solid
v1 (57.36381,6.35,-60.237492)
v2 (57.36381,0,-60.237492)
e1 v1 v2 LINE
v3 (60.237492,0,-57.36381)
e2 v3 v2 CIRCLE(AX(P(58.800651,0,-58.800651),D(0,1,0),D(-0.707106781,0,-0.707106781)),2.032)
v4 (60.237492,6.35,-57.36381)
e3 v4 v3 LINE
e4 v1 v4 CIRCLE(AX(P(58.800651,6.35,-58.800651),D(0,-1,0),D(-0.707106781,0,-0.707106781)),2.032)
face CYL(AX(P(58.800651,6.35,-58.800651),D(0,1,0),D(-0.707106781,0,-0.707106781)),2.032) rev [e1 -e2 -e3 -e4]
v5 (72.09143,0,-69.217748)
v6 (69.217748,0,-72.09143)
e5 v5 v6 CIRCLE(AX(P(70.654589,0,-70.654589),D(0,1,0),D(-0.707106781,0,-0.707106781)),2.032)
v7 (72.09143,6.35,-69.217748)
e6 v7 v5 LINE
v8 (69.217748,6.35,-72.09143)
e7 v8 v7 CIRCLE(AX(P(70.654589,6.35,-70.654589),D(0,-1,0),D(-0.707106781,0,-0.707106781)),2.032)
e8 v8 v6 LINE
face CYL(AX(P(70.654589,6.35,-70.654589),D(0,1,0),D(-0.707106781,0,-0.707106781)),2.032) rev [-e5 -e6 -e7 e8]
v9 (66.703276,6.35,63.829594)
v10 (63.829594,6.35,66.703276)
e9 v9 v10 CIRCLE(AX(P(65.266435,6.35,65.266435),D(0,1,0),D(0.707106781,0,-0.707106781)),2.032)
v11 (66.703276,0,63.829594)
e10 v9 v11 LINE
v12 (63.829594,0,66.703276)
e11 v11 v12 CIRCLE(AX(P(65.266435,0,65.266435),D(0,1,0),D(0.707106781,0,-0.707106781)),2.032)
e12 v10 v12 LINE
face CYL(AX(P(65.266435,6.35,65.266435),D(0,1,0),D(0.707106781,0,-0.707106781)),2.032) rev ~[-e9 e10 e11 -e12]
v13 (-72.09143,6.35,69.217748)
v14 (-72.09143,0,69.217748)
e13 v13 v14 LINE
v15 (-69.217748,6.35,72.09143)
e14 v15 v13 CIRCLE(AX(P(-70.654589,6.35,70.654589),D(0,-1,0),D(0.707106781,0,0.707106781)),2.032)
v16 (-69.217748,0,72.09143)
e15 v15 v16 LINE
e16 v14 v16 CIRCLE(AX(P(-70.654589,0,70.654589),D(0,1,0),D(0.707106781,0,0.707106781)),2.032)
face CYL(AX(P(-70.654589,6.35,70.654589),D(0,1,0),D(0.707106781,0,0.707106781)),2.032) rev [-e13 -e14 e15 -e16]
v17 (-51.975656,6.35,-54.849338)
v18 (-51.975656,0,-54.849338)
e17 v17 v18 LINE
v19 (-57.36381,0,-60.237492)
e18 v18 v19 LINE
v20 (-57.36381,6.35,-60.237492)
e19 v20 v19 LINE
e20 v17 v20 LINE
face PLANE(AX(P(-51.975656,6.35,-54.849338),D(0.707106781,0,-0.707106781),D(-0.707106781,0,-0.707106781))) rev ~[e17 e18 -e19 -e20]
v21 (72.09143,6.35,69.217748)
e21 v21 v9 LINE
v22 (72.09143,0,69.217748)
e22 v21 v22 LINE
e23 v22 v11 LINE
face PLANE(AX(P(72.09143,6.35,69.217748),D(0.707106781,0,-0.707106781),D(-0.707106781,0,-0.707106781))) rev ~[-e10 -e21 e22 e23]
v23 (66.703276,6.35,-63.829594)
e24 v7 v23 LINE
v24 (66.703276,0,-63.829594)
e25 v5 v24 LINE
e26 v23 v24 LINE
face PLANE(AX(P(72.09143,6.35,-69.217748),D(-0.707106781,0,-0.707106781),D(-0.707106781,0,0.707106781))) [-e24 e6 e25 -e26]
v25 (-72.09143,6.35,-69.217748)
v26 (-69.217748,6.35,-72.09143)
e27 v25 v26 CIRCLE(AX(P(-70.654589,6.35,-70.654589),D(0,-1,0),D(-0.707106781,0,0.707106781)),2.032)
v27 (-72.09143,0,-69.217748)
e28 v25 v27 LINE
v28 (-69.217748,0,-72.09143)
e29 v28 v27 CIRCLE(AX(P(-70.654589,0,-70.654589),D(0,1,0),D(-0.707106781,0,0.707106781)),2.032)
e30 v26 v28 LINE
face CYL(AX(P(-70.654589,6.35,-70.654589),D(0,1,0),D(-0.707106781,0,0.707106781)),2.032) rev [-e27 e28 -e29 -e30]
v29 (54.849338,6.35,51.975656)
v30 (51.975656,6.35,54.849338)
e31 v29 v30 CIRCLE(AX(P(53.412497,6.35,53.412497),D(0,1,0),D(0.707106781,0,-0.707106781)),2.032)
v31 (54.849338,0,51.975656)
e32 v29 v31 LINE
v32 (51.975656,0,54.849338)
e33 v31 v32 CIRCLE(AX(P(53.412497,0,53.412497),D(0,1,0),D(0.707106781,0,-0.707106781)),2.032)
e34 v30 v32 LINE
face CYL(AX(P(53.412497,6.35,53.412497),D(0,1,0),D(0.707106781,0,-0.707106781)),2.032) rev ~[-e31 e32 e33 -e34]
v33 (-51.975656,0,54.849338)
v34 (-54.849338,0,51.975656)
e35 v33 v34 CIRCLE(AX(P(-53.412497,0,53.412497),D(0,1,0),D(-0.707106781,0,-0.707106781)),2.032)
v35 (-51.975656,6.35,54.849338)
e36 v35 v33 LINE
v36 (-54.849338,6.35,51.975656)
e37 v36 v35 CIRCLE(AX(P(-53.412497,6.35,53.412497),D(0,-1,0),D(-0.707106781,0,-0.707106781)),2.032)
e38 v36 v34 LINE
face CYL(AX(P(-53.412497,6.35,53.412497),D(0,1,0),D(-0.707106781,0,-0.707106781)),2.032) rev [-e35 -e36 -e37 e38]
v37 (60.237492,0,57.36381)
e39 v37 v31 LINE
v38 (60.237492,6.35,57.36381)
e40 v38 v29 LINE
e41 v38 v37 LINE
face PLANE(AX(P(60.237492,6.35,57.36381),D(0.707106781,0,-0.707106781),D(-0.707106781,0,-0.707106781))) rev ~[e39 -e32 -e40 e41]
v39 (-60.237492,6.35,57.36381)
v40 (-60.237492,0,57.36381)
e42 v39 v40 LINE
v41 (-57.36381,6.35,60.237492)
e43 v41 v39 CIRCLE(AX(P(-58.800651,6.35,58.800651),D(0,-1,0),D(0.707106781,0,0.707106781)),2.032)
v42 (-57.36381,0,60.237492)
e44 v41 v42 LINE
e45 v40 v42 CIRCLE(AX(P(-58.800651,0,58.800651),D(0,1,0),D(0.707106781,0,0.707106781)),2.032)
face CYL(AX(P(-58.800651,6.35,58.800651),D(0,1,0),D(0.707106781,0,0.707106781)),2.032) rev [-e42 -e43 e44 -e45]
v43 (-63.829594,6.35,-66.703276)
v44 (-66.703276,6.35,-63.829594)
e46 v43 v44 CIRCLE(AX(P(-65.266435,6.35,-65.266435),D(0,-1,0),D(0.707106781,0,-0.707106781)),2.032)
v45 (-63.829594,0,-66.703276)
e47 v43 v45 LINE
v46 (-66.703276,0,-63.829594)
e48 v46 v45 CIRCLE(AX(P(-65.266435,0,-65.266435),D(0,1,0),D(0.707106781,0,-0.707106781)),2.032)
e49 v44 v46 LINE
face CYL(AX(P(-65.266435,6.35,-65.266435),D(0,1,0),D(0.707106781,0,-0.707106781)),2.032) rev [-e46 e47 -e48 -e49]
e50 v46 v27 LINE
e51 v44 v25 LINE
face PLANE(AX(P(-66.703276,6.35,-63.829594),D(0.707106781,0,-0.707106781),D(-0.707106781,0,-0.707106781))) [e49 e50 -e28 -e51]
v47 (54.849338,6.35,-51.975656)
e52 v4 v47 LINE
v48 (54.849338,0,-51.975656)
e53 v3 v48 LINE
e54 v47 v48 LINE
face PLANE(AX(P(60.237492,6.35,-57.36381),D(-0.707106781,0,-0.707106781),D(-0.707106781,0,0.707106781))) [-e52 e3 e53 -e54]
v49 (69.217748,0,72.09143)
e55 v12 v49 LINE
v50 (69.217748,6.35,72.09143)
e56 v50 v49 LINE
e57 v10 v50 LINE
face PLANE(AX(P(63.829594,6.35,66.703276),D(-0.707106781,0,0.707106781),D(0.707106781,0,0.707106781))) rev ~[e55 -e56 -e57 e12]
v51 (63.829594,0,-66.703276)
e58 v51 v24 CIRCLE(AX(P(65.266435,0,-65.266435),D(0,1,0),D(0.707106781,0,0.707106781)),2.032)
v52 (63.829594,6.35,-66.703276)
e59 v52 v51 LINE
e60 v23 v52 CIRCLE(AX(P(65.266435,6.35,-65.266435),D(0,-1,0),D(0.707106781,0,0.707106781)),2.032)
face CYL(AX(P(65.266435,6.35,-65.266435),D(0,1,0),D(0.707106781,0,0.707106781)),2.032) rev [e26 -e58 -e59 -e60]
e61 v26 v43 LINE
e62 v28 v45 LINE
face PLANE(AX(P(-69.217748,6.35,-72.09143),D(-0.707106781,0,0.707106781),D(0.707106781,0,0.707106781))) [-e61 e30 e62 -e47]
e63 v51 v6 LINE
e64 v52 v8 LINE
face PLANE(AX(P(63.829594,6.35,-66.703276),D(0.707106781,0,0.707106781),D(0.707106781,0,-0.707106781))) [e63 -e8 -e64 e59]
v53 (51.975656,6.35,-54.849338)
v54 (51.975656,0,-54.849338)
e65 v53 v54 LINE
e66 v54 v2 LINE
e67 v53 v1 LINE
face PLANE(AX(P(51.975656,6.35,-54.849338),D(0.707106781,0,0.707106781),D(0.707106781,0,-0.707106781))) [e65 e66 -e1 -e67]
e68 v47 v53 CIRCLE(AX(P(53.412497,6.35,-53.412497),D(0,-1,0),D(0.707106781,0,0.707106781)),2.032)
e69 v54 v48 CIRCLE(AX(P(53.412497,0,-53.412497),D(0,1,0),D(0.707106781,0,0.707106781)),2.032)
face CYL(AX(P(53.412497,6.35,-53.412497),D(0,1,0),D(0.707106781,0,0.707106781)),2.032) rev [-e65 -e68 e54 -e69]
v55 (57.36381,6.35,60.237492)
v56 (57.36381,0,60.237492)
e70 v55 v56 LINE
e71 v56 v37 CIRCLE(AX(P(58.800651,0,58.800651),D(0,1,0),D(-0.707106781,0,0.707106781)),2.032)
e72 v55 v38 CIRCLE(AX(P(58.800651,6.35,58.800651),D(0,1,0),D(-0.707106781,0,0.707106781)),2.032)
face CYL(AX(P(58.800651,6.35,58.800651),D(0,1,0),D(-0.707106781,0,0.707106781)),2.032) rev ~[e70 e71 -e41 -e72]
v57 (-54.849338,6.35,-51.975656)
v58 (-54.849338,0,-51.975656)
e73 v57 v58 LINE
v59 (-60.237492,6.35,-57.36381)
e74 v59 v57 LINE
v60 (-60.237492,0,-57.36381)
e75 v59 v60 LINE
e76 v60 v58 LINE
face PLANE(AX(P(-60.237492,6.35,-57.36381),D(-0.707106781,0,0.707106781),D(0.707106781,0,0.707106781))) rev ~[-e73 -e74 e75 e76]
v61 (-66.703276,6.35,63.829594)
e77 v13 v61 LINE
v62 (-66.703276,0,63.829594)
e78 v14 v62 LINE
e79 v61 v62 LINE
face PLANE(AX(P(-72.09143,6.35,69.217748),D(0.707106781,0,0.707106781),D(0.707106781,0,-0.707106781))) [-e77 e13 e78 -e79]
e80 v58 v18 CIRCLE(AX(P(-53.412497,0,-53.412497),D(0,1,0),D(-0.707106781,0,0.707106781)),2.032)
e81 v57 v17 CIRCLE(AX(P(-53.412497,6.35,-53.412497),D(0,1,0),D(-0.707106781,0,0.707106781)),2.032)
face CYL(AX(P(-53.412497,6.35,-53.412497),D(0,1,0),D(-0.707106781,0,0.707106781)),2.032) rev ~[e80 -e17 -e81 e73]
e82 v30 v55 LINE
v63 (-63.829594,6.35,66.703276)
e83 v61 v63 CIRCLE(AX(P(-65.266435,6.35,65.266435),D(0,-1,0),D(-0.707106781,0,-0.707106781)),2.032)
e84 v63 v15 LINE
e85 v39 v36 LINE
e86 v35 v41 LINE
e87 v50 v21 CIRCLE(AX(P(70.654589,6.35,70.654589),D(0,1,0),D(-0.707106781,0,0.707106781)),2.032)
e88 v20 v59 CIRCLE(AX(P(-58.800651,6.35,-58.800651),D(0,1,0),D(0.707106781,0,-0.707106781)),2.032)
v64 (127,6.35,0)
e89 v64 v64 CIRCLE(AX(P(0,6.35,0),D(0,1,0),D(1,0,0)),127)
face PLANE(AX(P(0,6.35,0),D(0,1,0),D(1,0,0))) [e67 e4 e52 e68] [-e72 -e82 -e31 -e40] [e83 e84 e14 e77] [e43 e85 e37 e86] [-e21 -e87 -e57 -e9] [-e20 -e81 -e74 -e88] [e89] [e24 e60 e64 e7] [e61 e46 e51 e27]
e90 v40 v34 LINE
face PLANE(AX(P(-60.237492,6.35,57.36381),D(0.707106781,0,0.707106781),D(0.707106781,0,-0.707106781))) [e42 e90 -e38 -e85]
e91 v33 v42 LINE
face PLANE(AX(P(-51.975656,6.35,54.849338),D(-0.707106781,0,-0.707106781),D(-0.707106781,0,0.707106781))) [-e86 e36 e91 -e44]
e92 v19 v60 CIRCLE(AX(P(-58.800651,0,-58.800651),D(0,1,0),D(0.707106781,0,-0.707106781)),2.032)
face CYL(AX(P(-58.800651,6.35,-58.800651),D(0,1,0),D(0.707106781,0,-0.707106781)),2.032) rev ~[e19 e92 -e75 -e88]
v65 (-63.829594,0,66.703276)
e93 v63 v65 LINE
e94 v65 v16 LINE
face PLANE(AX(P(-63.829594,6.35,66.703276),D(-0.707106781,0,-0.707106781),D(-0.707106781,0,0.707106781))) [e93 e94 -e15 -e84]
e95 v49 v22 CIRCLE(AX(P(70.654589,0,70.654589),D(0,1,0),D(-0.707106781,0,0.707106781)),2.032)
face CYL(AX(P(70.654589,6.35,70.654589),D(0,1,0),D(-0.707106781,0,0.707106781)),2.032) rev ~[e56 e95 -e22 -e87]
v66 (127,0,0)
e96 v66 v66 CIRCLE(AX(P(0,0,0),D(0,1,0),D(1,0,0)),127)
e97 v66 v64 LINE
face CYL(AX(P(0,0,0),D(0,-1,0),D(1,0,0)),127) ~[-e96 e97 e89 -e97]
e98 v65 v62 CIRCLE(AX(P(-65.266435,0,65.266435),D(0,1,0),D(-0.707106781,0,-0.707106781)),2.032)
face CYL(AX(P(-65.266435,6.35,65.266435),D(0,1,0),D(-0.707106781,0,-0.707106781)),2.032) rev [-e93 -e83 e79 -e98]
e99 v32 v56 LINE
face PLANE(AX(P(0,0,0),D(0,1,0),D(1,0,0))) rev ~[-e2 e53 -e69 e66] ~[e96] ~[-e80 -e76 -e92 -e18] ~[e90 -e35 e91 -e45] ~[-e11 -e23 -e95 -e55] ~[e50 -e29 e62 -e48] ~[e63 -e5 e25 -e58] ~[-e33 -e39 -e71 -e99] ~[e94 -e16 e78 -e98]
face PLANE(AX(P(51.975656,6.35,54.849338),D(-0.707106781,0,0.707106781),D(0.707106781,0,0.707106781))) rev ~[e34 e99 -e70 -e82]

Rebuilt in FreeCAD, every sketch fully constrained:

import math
import FreeCAD as App
import Part
import Sketcher

V = App.Vector
Q = App.Units.Quantity

doc = App.newDocument("Part")
params = doc.addObject("Spreadsheet::Sheet", "Params")
for row, (alias, value) in enumerate([
    ("sketch1_diameter", "10 in"),
    ("pad1_length", "0.25 in"),
    ("sketch2_radius", "0.08 in"),
    ("sketch2_length", "0.3 in"),
], start=1):
    params.set(f"A{row}", alias)
    params.set(f"B{row}", "=" + value)
    params.setAlias(f"B{row}", alias)

body = doc.addObject("PartDesign::Body", "Body")

# Sketch on XZ plane
sketch1 = doc.addObject("Sketcher::SketchObject", "Sketch")
body.addObject(sketch1)
sketch1.AttachmentSupport = (doc.XZ_Plane, [""])
sketch1.MapMode = "FlatFace"
sketch1.addGeometry(Part.Circle(V(0, 0, 0), V(0, 0, 1), 127), False)
sketch1.addConstraint([
    Sketcher.Constraint("Coincident", 0, 3, -1, 1),
    Sketcher.Constraint("Diameter", 0, Q("10 in")),
])
sketch1.setExpression("Constraints[1]", "Params.sketch1_diameter")
pad1 = doc.addObject("PartDesign::Pad", "Pad")
body.addObject(pad1)
pad1.Profile = sketch1
pad1.setExpression("Length", "Params.pad1_length")
pad1.Reversed = True

# Sketch on XZ plane
sketch2 = doc.addObject("Sketcher::SketchObject", "Sketch001")
body.addObject(sketch2)
sketch2.AttachmentSupport = (doc.XZ_Plane, [""])
sketch2.MapMode = "FlatFace"
sketch2.AttachmentOffset = App.Placement(V(0, 0, -0.25 * 25.4), App.Rotation())
sketch2.addGeometry([
    Part.LineSegment(V(-60.237492, -57.36381, 0), V(-54.849338, -51.975656, 0)),  # 0
    Part.ArcOfCircle(Part.Circle(V(-53.412497, -53.412497, 0), V(0, 0, 1), 2.032), math.radians(-45), math.radians(135)),  # 1
    Part.LineSegment(V(-51.975656, -54.849338, 0), V(-57.36381, -60.237492, 0)),  # 2
    Part.ArcOfCircle(Part.Circle(V(-58.800651, -58.800651, 0), V(0, 0, 1), 2.032), math.radians(135), math.radians(315)),  # 3
    Part.ArcOfCircle(Part.Circle(V(53.412497, -53.412497, 0), V(0, 0, 1), 2.032), math.radians(45), math.radians(225)),  # 4
    Part.LineSegment(V(54.849338, -51.975656, 0), V(60.237492, -57.36381, 0)),  # 5
    Part.ArcOfCircle(Part.Circle(V(58.800651, -58.800651, 0), V(0, 0, 1), 2.032), math.radians(-135), math.radians(45)),  # 6
    Part.LineSegment(V(57.36381, -60.237492, 0), V(51.975656, -54.849338, 0)),  # 7
    Part.ArcOfCircle(Part.Circle(V(65.266435, -65.266435, 0), V(0, 0, 1), 2.032), math.radians(45), math.radians(225)),  # 8
    Part.LineSegment(V(66.703276, -63.829594, 0), V(72.09143, -69.217748, 0)),  # 9
    Part.ArcOfCircle(Part.Circle(V(70.654589, -70.654589, 0), V(0, 0, 1), 2.032), math.radians(-135), math.radians(45)),  # 10
    Part.LineSegment(V(69.217748, -72.09143, 0), V(63.829594, -66.703276, 0)),  # 11
    Part.LineSegment(V(60.237492, 57.36381, 0), V(54.849338, 51.975656, 0)),  # 12
    Part.ArcOfCircle(Part.Circle(V(53.412497, 53.412497, 0), V(0, 0, 1), 2.032), math.radians(135), math.radians(315)),  # 13
    Part.LineSegment(V(51.975656, 54.849338, 0), V(57.36381, 60.237492, 0)),  # 14
    Part.ArcOfCircle(Part.Circle(V(58.800651, 58.800651, 0), V(0, 0, 1), 2.032), math.radians(-45), math.radians(135)),  # 15
    Part.LineSegment(V(72.09143, 69.217748, 0), V(66.703276, 63.829594, 0)),  # 16
    Part.ArcOfCircle(Part.Circle(V(65.266435, 65.266435, 0), V(0, 0, 1), 2.032), math.radians(135), math.radians(315)),  # 17
    Part.LineSegment(V(63.829594, 66.703276, 0), V(69.217748, 72.09143, 0)),  # 18
    Part.ArcOfCircle(Part.Circle(V(70.654589, 70.654589, 0), V(0, 0, 1), 2.032), math.radians(-45), math.radians(135)),  # 19
    Part.ArcOfCircle(Part.Circle(V(-53.412497, 53.412497, 0), V(0, 0, 1), 2.032), math.radians(-135), math.radians(45)),  # 20
    Part.LineSegment(V(-54.849338, 51.975656, 0), V(-60.237492, 57.36381, 0)),  # 21
    Part.ArcOfCircle(Part.Circle(V(-58.800651, 58.800651, 0), V(0, 0, 1), 2.032), math.radians(45), math.radians(225)),  # 22
    Part.LineSegment(V(-57.36381, 60.237492, 0), V(-51.975656, 54.849338, 0)),  # 23
    Part.ArcOfCircle(Part.Circle(V(-65.266435, 65.266435, 0), V(0, 0, 1), 2.032), math.radians(-135), math.radians(45)),  # 24
    Part.LineSegment(V(-66.703276, 63.829594, 0), V(-72.09143, 69.217748, 0)),  # 25
    Part.ArcOfCircle(Part.Circle(V(-70.654589, 70.654589, 0), V(0, 0, 1), 2.032), math.radians(45), math.radians(225)),  # 26
    Part.LineSegment(V(-69.217748, 72.09143, 0), V(-63.829594, 66.703276, 0)),  # 27
    Part.LineSegment(V(-63.829594, -66.703276, 0), V(-69.217748, -72.09143, 0)),  # 28
    Part.ArcOfCircle(Part.Circle(V(-70.654589, -70.654589, 0), V(0, 0, 1), 2.032), math.radians(135), math.radians(315)),  # 29
    Part.LineSegment(V(-72.09143, -69.217748, 0), V(-66.703276, -63.829594, 0)),  # 30
    Part.ArcOfCircle(Part.Circle(V(-65.266435, -65.266435, 0), V(0, 0, 1), 2.032), math.radians(-45), math.radians(135)),  # 31
], False)
sketch2.addConstraint([
    Sketcher.Constraint("Tangent", 0, 2, 1, 2),
    Sketcher.Constraint("Tangent", 1, 1, 2, 1),
    Sketcher.Constraint("Tangent", 2, 2, 3, 2),
    Sketcher.Constraint("Tangent", 3, 1, 0, 1),
    Sketcher.Constraint("Tangent", 4, 1, 5, 1),
    Sketcher.Constraint("Tangent", 5, 2, 6, 2),
    Sketcher.Constraint("Tangent", 6, 1, 7, 1),
    Sketcher.Constraint("Tangent", 7, 2, 4, 2),
    Sketcher.Constraint("Tangent", 8, 1, 9, 1),
    Sketcher.Constraint("Tangent", 9, 2, 10, 2),
    Sketcher.Constraint("Tangent", 10, 1, 11, 1),
    Sketcher.Constraint("Tangent", 11, 2, 8, 2),
    Sketcher.Constraint("Tangent", 12, 2, 13, 2),
    Sketcher.Constraint("Tangent", 13, 1, 14, 1),
    Sketcher.Constraint("Tangent", 14, 2, 15, 2),
    Sketcher.Constraint("Tangent", 15, 1, 12, 1),
    Sketcher.Constraint("Tangent", 16, 2, 17, 2),
    Sketcher.Constraint("Tangent", 17, 1, 18, 1),
    Sketcher.Constraint("Tangent", 18, 2, 19, 2),
    Sketcher.Constraint("Tangent", 19, 1, 16, 1),
    Sketcher.Constraint("Tangent", 20, 1, 21, 1),
    Sketcher.Constraint("Tangent", 21, 2, 22, 2),
    Sketcher.Constraint("Tangent", 22, 1, 23, 1),
    Sketcher.Constraint("Tangent", 23, 2, 20, 2),
    Sketcher.Constraint("Tangent", 24, 1, 25, 1),
    Sketcher.Constraint("Tangent", 25, 2, 26, 2),
    Sketcher.Constraint("Tangent", 26, 1, 27, 1),
    Sketcher.Constraint("Tangent", 27, 2, 24, 2),
    Sketcher.Constraint("Tangent", 28, 2, 29, 2),
    Sketcher.Constraint("Tangent", 29, 1, 30, 1),
    Sketcher.Constraint("Tangent", 30, 2, 31, 2),
    Sketcher.Constraint("Tangent", 31, 1, 28, 1),
    Sketcher.Constraint("Equal", 1, 3),
    Sketcher.Constraint("Equal", 3, 4),
    Sketcher.Constraint("Equal", 4, 6),
    Sketcher.Constraint("Equal", 6, 8),
    Sketcher.Constraint("Equal", 8, 10),
    Sketcher.Constraint("Equal", 10, 13),
    Sketcher.Constraint("Equal", 13, 15),
    Sketcher.Constraint("Equal", 15, 17),
    Sketcher.Constraint("Equal", 17, 19),
    Sketcher.Constraint("Equal", 19, 20),
    Sketcher.Constraint("Equal", 20, 22),
    Sketcher.Constraint("Equal", 22, 24),
    Sketcher.Constraint("Equal", 24, 26),
    Sketcher.Constraint("Equal", 26, 29),
    Sketcher.Constraint("Equal", 29, 31),
    Sketcher.Constraint("Symmetric", 1, 3, 13, 3, -1, 1),
    Sketcher.Constraint("Symmetric", 3, 3, 15, 3, -1, 1),
    Sketcher.Constraint("Symmetric", 4, 3, 20, 3, -1, 1),
    Sketcher.Constraint("Symmetric", 6, 3, 22, 3, -1, 1),
    Sketcher.Constraint("Symmetric", 8, 3, 24, 3, -1, 1),
    Sketcher.Constraint("Symmetric", 10, 3, 26, 3, -1, 1),
    Sketcher.Constraint("Symmetric", 19, 3, 29, 3, -1, 1),
    Sketcher.Constraint("Symmetric", 17, 3, 31, 3, -1, 1),
    Sketcher.Constraint("Symmetric", 1, 3, 4, 3, -2),
    Sketcher.Constraint("Symmetric", 3, 3, 6, 3, -2),
    Sketcher.Constraint("Symmetric", 17, 3, 24, 3, -2),
    Sketcher.Constraint("Symmetric", 19, 3, 26, 3, -2),
    Sketcher.Constraint("Perpendicular", 2, 5),
    Sketcher.Constraint("Parallel", 7, 9),
    Sketcher.Constraint("Equal", 7, 9),
    Sketcher.Constraint("Radius", 1, Q("0.08 in")),
    Sketcher.Constraint("Distance", 0, Q("0.3 in")),
    Sketcher.Constraint("DistanceX", 3, 3, 6, 3, 117.601302),
    Sketcher.Constraint("DistanceY", 6, 3, 15, 3, 117.601302),
    Sketcher.Constraint("DistanceX", -1, 1, 10, 3, 70.654589),
    Sketcher.Constraint("DistanceY", 10, 3, -1, 1, 70.654589),
])
sketch2.setExpression("Constraints[62]", "Params.sketch2_radius")
sketch2.setExpression("Constraints[63]", "Params.sketch2_length")
pocket1 = doc.addObject("PartDesign::Pocket", "Pocket")
body.addObject(pocket1)
pocket1.Profile = sketch2
pocket1.Type = "ThroughAll"
pocket1.Reversed = True

doc.recompute()
